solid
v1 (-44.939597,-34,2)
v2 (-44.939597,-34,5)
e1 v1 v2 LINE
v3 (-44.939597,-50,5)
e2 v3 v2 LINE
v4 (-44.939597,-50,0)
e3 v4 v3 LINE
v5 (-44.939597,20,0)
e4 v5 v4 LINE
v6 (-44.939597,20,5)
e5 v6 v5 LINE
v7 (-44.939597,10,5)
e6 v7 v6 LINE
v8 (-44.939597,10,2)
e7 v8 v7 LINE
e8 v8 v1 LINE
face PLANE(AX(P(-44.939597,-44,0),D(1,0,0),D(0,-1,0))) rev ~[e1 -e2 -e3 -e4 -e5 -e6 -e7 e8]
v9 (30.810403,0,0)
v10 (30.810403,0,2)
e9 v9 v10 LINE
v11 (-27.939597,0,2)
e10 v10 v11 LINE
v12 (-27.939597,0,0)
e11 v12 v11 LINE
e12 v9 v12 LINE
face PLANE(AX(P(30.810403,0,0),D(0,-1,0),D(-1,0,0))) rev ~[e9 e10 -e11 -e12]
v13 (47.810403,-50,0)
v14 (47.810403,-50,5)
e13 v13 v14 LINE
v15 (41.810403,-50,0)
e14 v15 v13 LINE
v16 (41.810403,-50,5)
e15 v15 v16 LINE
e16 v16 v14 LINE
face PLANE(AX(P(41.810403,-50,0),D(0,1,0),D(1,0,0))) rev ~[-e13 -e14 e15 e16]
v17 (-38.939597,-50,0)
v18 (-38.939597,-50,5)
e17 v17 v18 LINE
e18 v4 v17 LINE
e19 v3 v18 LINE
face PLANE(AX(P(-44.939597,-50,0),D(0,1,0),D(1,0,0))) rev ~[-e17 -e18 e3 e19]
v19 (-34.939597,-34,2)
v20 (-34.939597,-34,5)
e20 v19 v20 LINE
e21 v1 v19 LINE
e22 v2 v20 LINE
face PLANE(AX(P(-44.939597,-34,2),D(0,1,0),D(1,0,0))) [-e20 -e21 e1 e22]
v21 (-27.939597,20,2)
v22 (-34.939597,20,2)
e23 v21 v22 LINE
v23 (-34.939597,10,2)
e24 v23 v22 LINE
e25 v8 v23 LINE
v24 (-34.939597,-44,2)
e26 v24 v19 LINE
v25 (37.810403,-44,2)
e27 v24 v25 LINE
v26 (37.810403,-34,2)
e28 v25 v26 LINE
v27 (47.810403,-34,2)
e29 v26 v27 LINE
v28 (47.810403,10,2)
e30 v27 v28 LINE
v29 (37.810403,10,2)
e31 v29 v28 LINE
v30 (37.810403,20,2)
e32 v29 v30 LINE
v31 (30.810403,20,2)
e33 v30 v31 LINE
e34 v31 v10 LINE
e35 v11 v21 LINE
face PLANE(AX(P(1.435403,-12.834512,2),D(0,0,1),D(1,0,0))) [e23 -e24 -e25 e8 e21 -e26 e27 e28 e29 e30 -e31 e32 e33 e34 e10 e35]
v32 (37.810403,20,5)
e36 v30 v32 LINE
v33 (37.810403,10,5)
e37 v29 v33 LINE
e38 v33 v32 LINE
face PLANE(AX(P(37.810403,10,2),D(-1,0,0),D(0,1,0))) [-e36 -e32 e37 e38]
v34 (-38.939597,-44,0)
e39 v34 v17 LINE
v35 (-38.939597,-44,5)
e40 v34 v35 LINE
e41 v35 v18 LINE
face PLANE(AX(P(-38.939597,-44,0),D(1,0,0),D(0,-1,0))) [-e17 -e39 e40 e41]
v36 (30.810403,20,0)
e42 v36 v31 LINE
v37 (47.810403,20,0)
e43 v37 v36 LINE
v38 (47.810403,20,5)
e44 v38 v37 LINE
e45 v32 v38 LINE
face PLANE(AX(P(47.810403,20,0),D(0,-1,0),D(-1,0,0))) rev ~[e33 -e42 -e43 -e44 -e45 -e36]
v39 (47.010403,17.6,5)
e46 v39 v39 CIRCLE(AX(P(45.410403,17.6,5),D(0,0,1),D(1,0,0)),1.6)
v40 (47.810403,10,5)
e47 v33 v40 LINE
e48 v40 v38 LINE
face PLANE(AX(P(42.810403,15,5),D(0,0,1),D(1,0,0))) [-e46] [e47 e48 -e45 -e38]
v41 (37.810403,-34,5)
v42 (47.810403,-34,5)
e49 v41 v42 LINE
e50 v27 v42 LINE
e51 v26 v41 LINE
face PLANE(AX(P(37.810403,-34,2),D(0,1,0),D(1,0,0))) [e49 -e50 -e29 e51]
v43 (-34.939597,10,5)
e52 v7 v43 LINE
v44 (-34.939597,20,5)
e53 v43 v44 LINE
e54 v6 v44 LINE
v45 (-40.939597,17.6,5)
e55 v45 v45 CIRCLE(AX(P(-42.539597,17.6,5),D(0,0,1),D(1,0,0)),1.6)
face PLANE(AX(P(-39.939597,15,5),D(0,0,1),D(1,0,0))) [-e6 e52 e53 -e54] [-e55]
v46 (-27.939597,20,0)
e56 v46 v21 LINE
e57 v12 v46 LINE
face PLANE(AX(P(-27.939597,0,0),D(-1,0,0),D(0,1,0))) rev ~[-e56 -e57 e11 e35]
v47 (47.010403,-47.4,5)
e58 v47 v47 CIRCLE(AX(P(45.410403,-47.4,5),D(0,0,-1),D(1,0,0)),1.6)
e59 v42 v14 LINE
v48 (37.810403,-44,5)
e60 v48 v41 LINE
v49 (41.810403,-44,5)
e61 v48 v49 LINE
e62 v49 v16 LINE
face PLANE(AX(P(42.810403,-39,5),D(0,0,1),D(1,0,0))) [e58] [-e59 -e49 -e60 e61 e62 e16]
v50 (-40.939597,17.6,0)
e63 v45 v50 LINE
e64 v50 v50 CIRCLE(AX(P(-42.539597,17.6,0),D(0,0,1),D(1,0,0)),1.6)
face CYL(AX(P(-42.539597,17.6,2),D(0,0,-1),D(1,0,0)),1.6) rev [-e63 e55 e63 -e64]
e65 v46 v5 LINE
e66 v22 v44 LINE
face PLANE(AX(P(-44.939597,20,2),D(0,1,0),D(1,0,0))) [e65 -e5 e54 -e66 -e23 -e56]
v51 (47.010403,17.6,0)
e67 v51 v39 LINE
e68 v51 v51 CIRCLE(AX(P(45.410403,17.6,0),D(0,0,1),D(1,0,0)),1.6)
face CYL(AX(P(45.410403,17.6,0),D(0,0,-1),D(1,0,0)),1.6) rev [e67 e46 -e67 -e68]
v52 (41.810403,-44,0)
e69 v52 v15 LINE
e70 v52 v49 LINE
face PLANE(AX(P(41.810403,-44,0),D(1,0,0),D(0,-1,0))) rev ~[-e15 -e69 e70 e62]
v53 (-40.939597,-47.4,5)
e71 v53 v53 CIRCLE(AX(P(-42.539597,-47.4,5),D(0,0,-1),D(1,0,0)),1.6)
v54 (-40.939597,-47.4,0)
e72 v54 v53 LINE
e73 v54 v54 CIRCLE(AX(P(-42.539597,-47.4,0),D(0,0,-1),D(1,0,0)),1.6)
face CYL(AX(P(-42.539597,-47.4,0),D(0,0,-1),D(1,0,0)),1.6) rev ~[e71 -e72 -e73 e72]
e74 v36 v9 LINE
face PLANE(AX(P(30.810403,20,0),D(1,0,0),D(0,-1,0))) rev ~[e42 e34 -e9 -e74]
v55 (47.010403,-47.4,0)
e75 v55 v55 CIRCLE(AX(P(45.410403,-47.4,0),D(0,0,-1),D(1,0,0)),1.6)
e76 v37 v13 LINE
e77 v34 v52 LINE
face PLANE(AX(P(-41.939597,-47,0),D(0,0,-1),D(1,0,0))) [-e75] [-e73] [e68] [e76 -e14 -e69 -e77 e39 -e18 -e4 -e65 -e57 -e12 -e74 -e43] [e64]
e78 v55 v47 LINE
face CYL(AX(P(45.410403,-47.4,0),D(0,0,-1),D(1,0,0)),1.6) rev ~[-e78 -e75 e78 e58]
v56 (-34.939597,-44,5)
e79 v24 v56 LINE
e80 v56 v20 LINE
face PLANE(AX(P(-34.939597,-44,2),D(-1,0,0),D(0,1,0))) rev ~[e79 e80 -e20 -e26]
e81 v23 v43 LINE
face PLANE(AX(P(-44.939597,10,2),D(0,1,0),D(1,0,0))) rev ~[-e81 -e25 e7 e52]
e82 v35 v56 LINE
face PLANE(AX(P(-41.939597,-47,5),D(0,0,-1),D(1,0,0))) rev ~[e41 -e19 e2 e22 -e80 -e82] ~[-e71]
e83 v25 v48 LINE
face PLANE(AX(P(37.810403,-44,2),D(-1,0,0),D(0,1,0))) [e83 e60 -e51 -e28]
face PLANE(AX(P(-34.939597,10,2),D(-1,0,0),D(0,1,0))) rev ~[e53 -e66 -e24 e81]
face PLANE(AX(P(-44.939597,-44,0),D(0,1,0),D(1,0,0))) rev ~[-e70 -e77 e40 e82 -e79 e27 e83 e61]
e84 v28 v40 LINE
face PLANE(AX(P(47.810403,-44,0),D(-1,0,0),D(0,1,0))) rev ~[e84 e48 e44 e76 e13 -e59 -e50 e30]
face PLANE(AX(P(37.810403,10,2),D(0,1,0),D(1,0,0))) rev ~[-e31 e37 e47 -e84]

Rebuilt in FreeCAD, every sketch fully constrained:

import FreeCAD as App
import Part
import Sketcher

V = App.Vector
Q = App.Units.Quantity


def add_polygon(sketch, points):
    """Adds a closed chain of lines whose ends are joined by coincident constraints."""
    first, n = sketch.GeometryCount, len(points)
    for a, b in zip(points, points[1:] + points[:1]):
        sketch.addGeometry(Part.LineSegment(App.Vector(*a, 0), App.Vector(*b, 0)), False)
    for i in range(n):
        sketch.addConstraint(Sketcher.Constraint("Coincident", first + i, 2, first + (i + 1) % n, 1))

doc = App.newDocument("Part")
params = doc.addObject("Spreadsheet::Sheet", "Params")
for row, (alias, value) in enumerate([
    ("sketch1_diameter", "3.2 mm"),
    ("sketch1_width", "17 mm"),
    ("sketch1_height", "20 mm"),
    ("sketch1_height2", "64 mm"),
    ("sketch1_width2", "92.75 mm"),
    ("pad1_length", "2 mm"),
    ("sketch2_diameter", "3.2 mm"),
    ("sketch2_width", "10 mm"),
    ("pad2_length", "3 mm"),
    ("sketch3_diameter", "3.2 mm"),
    ("sketch3_width", "6 mm"),
    ("pad3_length", "5 mm"),
], start=1):
    params.set(f"A{row}", alias)
    params.set(f"B{row}", "=" + value)
    params.setAlias(f"B{row}", alias)

body = doc.addObject("PartDesign::Body", "Body")

sketch1 = doc.addObject("Sketcher::SketchObject", "Sketch")
body.addObject(sketch1)
sketch1.AttachmentSupport = (doc.XY_Plane, [""])
sketch1.MapMode = "FlatFace"
add_polygon(sketch1, [(-27.9, 0), (-27.9, 20), (-44.9, 20), (-44.9, -44), (47.8, -44), (47.8, 20), (30.8, 20), (30.8, 0)])
sketch1.addGeometry(Part.Circle(V(-42.5, 17.6, 0), V(0, 0, 1), 1.6), False)
sketch1.addGeometry(Part.Circle(V(45.4, 17.6, 0), V(0, 0, 1), 1.6), False)
sketch1.addConstraint(Sketcher.Constraint("Vertical", 0))
sketch1.addConstraint(Sketcher.Constraint("Horizontal", 1))
sketch1.addConstraint(Sketcher.Constraint("Vertical", 2))
sketch1.addConstraint(Sketcher.Constraint("Horizontal", 3))
sketch1.addConstraint(Sketcher.Constraint("Vertical", 4))
sketch1.addConstraint(Sketcher.Constraint("Horizontal", 5))
sketch1.addConstraint(Sketcher.Constraint("Vertical", 6))
sketch1.addConstraint(Sketcher.Constraint("Horizontal", 7))
sketch1.addConstraint(Sketcher.Constraint("Equal", 8, 9))
sketch1.addConstraint(Sketcher.Constraint("PointOnObject", 6, 2, -1))
sketch1.addConstraint(Sketcher.Constraint("Horizontal", 8, 3, 9, 3))
sketch1.addConstraint(Sketcher.Constraint("Horizontal", 1, 2, 4, 2))
sketch1.addConstraint(Sketcher.Constraint("Equal", 1, 5))
sketch1.addConstraint(Sketcher.Constraint("Diameter", 8, Q("3.2 mm")))
sketch1.addConstraint(Sketcher.Constraint("DistanceX", 1, 2, 1, 1, Q("17 mm")))
sketch1.addConstraint(Sketcher.Constraint("DistanceY", 0, 1, 0, 2, Q("20 mm")))
sketch1.addConstraint(Sketcher.Constraint("DistanceY", 2, 2, 2, 1, Q("64 mm")))
sketch1.addConstraint(Sketcher.Constraint("DistanceX", 3, 1, 3, 2, Q("92.75 mm")))
sketch1.addConstraint(Sketcher.Constraint("DistanceY", -1, 1, 8, 3, Q("17.6 mm")))
sketch1.addConstraint(Sketcher.Constraint("DistanceX", 8, 3, 0, 2, Q("14.6 mm")))
sketch1.addConstraint(Sketcher.Constraint("DistanceX", 9, 3, 3, 2, Q("2.4 mm")))
sketch1.addConstraint(Sketcher.Constraint("DistanceX", 8, 3, -1, 1, Q("42.539597 mm")))
sketch1.setExpression("Constraints[21]", "Params.sketch1_diameter")
sketch1.setExpression("Constraints[22]", "Params.sketch1_width")
sketch1.setExpression("Constraints[23]", "Params.sketch1_height")
sketch1.setExpression("Constraints[24]", "Params.sketch1_height2")
sketch1.setExpression("Constraints[25]", "Params.sketch1_width2")
pad1 = doc.addObject("PartDesign::Pad", "Pad")
body.addObject(pad1)
pad1.Profile = sketch1
pad1.setExpression("Length", "Params.pad1_length")

sketch2 = doc.addObject("Sketcher::SketchObject", "Sketch001")
body.addObject(sketch2)
sketch2.AttachmentSupport = (doc.XY_Plane, [""])
sketch2.MapMode = "FlatFace"
sketch2.AttachmentOffset = App.Placement(V(0, 0, 2), App.Rotation())
add_polygon(sketch2, [(-44.9, 20), (-44.9, 10), (-34.9, 10), (-34.9, 20)])
sketch2.addGeometry(Part.Circle(V(-42.5, 17.6, 0), V(0, 0, 1), 1.6), False)
add_polygon(sketch2, [(37.8, 20), (37.8, 10), (47.8, 10), (47.8, 20)])
sketch2.addGeometry(Part.Circle(V(45.4, 17.6, 0), V(0, 0, 1), 1.6), False)
add_polygon(sketch2, [(-44.9, -34), (-44.9, -44), (-34.9, -44), (-34.9, -34)])
add_polygon(sketch2, [(37.8, -34), (37.8, -44), (47.8, -44), (47.8, -34)])
sketch2.addConstraint(Sketcher.Constraint("Vertical", 0))
sketch2.addConstraint(Sketcher.Constraint("Horizontal", 1))
sketch2.addConstraint(Sketcher.Constraint("Vertical", 2))
sketch2.addConstraint(Sketcher.Constraint("Horizontal", 3))
sketch2.addConstraint(Sketcher.Constraint("Vertical", 5))
sketch2.addConstraint(Sketcher.Constraint("Horizontal", 6))
sketch2.addConstraint(Sketcher.Constraint("Vertical", 7))
sketch2.addConstraint(Sketcher.Constraint("Horizontal", 8))
sketch2.addConstraint(Sketcher.Constraint("Vertical", 10))
sketch2.addConstraint(Sketcher.Constraint("Horizontal", 11))
sketch2.addConstraint(Sketcher.Constraint("Vertical", 12))
sketch2.addConstraint(Sketcher.Constraint("Horizontal", 13))
sketch2.addConstraint(Sketcher.Constraint("Vertical", 14))
sketch2.addConstraint(Sketcher.Constraint("Horizontal", 15))
sketch2.addConstraint(Sketcher.Constraint("Vertical", 16))
sketch2.addConstraint(Sketcher.Constraint("Horizontal", 17))
sketch2.addConstraint(Sketcher.Constraint("Equal", 4, 9))
sketch2.addConstraint(Sketcher.Constraint("Horizontal", 4, 3, 9, 3))
sketch2.addConstraint(Sketcher.Constraint("Horizontal", 1, 2, 5, 2))
sketch2.addConstraint(Sketcher.Constraint("Horizontal", 3, 2, 7, 2))
sketch2.addConstraint(Sketcher.Constraint("Horizontal", 11, 2, 14, 2))
sketch2.addConstraint(Sketcher.Constraint("Horizontal", 13, 2, 16, 2))
sketch2.addConstraint(Sketcher.Constraint("Vertical", 3, 2, 10, 2))
sketch2.addConstraint(Sketcher.Constraint("Vertical", 2, 2, 11, 2))
sketch2.addConstraint(Sketcher.Constraint("Vertical", 8, 2, 14, 2))
sketch2.addConstraint(Sketcher.Constraint("Vertical", 7, 2, 15, 2))
sketch2.addConstraint(Sketcher.Constraint("Equal", 3, 6))
sketch2.addConstraint(Sketcher.Constraint("Equal", 17, 0))
sketch2.addConstraint(Sketcher.Constraint("Equal", 7, 10))
sketch2.addConstraint(Sketcher.Constraint("Diameter", 4, Q("3.2 mm")))
sketch2.addConstraint(Sketcher.Constraint("DistanceX", 1, 1, 1, 2, Q("10 mm")))
sketch2.addConstraint(Sketcher.Constraint("DistanceY", -1, 1, 0, 2, Q("10 mm")))
sketch2.addConstraint(Sketcher.Constraint("DistanceY", 10, 2, -1, 1, Q("44 mm")))
sketch2.addConstraint(Sketcher.Constraint("DistanceY", -1, 1, 4, 3, Q("17.6 mm")))
sketch2.addConstraint(Sketcher.Constraint("DistanceX", 0, 2, 4, 3, Q("2.4 mm")))
sketch2.addConstraint(Sketcher.Constraint("DistanceX", 5, 2, 9, 3, Q("7.6 mm")))
sketch2.addConstraint(Sketcher.Constraint("DistanceX", 4, 3, 9, 3, Q("87.95 mm")))
sketch2.addConstraint(Sketcher.Constraint("DistanceX", 4, 3, -1, 1, Q("42.539597 mm")))
sketch2.setExpression("Constraints[45]", "Params.sketch2_diameter")
sketch2.setExpression("Constraints[46]", "Params.sketch2_width")
pad2 = doc.addObject("PartDesign::Pad", "Pad001")
body.addObject(pad2)
pad2.Profile = sketch2
pad2.setExpression("Length", "Params.pad2_length")

sketch3 = doc.addObject("Sketcher::SketchObject", "Sketch002")
body.addObject(sketch3)
sketch3.AttachmentSupport = (doc.XY_Plane, [""])
sketch3.MapMode = "FlatFace"
add_polygon(sketch3, [(-44.9, -50), (-44.9, -44), (-38.9, -44), (-38.9, -50)])
sketch3.addGeometry(Part.Circle(V(-42.5, -47.4, 0), V(0, 0, 1), 1.6), False)
add_polygon(sketch3, [(41.8, -50), (41.8, -44), (47.8, -44), (47.8, -50)])
sketch3.addGeometry(Part.Circle(V(45.4, -47.4, 0), V(0, 0, 1), 1.6), False)
sketch3.addConstraint(Sketcher.Constraint("Vertical", 0))
sketch3.addConstraint(Sketcher.Constraint("Horizontal", 1))
sketch3.addConstraint(Sketcher.Constraint("Vertical", 2))
sketch3.addConstraint(Sketcher.Constraint("Horizontal", 3))
sketch3.addConstraint(Sketcher.Constraint("Vertical", 5))
sketch3.addConstraint(Sketcher.Constraint("Horizontal", 6))
sketch3.addConstraint(Sketcher.Constraint("Vertical", 7))
sketch3.addConstraint(Sketcher.Constraint("Horizontal", 8))
sketch3.addConstraint(Sketcher.Constraint("Equal", 4, 9))
sketch3.addConstraint(Sketcher.Constraint("Horizontal", 4, 3, 9, 3))
sketch3.addConstraint(Sketcher.Constraint("Horizontal", 1, 2, 5, 2))
sketch3.addConstraint(Sketcher.Constraint("Horizontal", 3, 2, 7, 2))
sketch3.addConstraint(Sketcher.Constraint("Equal", 3, 6))
sketch3.addConstraint(Sketcher.Constraint("Equal", 8, 0))
sketch3.addConstraint(Sketcher.Constraint("Diameter", 4, Q("3.2 mm")))
sketch3.addConstraint(Sketcher.Constraint("DistanceX", 1, 1, 1, 2, Q("6 mm")))
sketch3.addConstraint(Sketcher.Constraint("DistanceY", 0, 2, -1, 1, Q("44 mm")))
sketch3.addConstraint(Sketcher.Constraint("DistanceY", 4, 3, -1, 1, Q("47.4 mm")))
sketch3.addConstraint(Sketcher.Constraint("DistanceX", 0, 2, 4, 3, Q("2.4 mm")))
sketch3.addConstraint(Sketcher.Constraint("DistanceX", 5, 2, 9, 3, Q("3.6 mm")))
sketch3.addConstraint(Sketcher.Constraint("DistanceX", 4, 3, 9, 3, Q("87.95 mm")))
sketch3.addConstraint(Sketcher.Constraint("DistanceX", 4, 3, -1, 1, Q("42.539597 mm")))
sketch3.setExpression("Constraints[22]", "Params.sketch3_diameter")
sketch3.setExpression("Constraints[23]", "Params.sketch3_width")
pad3 = doc.addObject("PartDesign::Pad", "Pad002")
body.addObject(pad3)
pad3.Profile = sketch3
pad3.setExpression("Length", "Params.pad3_length")

doc.recompute()
